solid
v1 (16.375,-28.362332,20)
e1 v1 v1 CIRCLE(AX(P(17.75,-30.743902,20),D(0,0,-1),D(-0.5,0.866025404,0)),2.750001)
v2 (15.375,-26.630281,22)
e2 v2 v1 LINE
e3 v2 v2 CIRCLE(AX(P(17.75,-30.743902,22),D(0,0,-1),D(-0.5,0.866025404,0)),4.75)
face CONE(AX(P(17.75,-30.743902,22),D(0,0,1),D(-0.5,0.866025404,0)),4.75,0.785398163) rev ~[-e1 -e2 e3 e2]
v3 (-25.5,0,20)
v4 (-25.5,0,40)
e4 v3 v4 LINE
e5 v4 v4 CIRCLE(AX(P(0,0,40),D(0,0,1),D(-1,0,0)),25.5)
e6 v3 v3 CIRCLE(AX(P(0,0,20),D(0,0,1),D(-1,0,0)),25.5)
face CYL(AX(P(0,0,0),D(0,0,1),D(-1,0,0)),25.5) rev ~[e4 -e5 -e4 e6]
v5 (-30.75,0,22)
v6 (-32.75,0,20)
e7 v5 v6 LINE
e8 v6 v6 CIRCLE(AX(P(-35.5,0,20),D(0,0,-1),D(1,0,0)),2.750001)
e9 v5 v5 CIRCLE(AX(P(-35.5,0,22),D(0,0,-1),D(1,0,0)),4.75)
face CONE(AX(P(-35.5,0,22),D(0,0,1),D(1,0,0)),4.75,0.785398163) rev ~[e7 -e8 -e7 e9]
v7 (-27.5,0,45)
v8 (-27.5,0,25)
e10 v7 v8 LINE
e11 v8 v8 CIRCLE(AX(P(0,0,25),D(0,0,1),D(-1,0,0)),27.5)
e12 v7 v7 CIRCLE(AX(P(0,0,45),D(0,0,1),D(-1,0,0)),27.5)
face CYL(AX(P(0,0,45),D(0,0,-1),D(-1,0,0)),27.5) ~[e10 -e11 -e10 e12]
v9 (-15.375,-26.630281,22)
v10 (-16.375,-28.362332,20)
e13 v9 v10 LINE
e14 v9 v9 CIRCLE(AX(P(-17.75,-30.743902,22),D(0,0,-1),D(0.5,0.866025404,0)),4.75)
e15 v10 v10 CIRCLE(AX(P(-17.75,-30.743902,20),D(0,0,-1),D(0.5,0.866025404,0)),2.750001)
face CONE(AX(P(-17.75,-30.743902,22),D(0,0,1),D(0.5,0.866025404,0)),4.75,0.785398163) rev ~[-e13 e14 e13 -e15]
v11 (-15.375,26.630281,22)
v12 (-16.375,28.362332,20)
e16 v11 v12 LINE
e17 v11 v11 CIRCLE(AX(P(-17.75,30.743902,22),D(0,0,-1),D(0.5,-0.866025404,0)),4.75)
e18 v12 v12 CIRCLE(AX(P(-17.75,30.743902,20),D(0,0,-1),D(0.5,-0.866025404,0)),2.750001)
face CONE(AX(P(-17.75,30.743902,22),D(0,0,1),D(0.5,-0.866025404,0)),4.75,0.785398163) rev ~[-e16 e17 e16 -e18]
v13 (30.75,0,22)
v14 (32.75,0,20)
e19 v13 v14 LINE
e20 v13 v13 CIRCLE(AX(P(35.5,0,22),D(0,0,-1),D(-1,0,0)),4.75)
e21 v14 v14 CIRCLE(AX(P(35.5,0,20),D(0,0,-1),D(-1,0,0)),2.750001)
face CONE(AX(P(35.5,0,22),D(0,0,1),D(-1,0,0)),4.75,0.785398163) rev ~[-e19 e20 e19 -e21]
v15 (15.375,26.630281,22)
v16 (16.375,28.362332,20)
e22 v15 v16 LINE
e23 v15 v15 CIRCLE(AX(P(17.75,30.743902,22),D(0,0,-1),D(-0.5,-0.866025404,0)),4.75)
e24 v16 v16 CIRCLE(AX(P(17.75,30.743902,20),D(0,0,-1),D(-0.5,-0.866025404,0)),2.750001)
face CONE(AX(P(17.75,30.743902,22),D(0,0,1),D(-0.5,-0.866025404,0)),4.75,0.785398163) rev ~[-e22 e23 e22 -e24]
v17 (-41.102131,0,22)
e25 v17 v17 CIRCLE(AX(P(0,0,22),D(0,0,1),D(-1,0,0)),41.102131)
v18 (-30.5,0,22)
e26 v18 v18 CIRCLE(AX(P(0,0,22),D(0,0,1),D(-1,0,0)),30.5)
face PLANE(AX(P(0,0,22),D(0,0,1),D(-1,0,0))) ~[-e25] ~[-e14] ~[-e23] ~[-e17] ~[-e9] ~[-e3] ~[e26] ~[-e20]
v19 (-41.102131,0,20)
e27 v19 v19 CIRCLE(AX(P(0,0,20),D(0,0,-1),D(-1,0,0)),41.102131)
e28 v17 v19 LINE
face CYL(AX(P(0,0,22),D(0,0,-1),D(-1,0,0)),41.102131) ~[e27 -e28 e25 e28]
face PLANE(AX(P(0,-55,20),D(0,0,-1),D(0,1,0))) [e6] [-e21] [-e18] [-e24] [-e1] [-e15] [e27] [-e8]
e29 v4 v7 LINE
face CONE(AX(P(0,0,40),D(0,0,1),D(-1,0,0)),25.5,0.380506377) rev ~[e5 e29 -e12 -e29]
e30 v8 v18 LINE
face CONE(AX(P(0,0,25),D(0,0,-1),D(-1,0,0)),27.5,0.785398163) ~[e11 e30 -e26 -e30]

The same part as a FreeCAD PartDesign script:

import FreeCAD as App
import Part
import Sketcher

V = App.Vector
Q = App.Units.Quantity

doc = App.newDocument("Part")
body = doc.addObject("PartDesign::Body", "Body")

# Sketch on XZ plane
sketch1 = body.newObject("Sketcher::SketchObject", "Sketch")
sketch1.AttachmentSupport = (doc.getObject("XZ_Plane"), [""])
sketch1.MapMode = "FlatFace"
sketch1.addGeometry([
    Part.LineSegment(V(-27.5, 18, 0), V(-27.5, 0, 0)),  # 0
    Part.LineSegment(V(-27.5, 0, 0), V(-25.5, 0, 0)),  # 1
    Part.LineSegment(V(-25.5, 0, 0), V(-25.5, 40, 0)),  # 2
    Part.LineSegment(V(-25.5, 40, 0), V(-27.5, 45, 0)),  # 3
    Part.LineSegment(V(-27.5, 45, 0), V(-27.5, 25, 0)),  # 4
    Part.LineSegment(V(-27.5, 25, 0), V(-30.5, 22, 0)),  # 5
    Part.LineSegment(V(-30.5, 22, 0), V(-41.1, 22, 0)),  # 6
    Part.LineSegment(V(-41.1, 22, 0), V(-41.1, 18, 0)),  # 7
    Part.LineSegment(V(-41.1, 18, 0), V(-27.5, 18, 0)),  # 8
], False)
sketch1.addConstraint([
    Sketcher.Constraint("Coincident", 0, 2, 1, 1),
    Sketcher.Constraint("Coincident", 1, 2, 2, 1),
    Sketcher.Constraint("Coincident", 2, 2, 3, 1),
    Sketcher.Constraint("Coincident", 3, 2, 4, 1),
    Sketcher.Constraint("Coincident", 4, 2, 5, 1),
    Sketcher.Constraint("Coincident", 5, 2, 6, 1),
    Sketcher.Constraint("Coincident", 6, 2, 7, 1),
    Sketcher.Constraint("Coincident", 7, 2, 8, 1),
    Sketcher.Constraint("Coincident", 8, 2, 0, 1),
    Sketcher.Constraint("Vertical", 0),
    Sketcher.Constraint("Horizontal", 1),
    Sketcher.Constraint("Vertical", 2),
    Sketcher.Constraint("Vertical", 4),
    Sketcher.Constraint("Horizontal", 6),
    Sketcher.Constraint("Vertical", 7),
    Sketcher.Constraint("Horizontal", 8),
    Sketcher.Constraint("PointOnObject", 0, 2, -1),
    Sketcher.Constraint("Vertical", 0, 2, 3, 2),
    Sketcher.Constraint("DistanceX", 1, 1, 1, 2, Q("2 mm")),
    Sketcher.Constraint("DistanceY", 0, 2, 0, 1, Q("18 mm")),
    Sketcher.Constraint("DistanceY", 2, 1, 2, 2, Q("40 mm")),
    Sketcher.Constraint("DistanceY", 4, 2, 4, 1, Q("20 mm")),
    Sketcher.Constraint("DistanceY", 7, 2, 7, 1, Q("4 mm")),
    Sketcher.Constraint("Angle", 5, Q("-135 deg")),
    Sketcher.Constraint("DistanceY", -1, 1, 3, 2, Q("45 mm")),
    Sketcher.Constraint("DistanceX", 0, 2, -1, 1, Q("27.5 mm")),
    Sketcher.Constraint("DistanceX", 6, 2, 6, 1, Q("10.602131 mm")),
])
revolution = body.newObject("PartDesign::Revolution", "Revolution")
revolution.Profile = sketch1
revolution.ReferenceAxis = (sketch1, ["V_Axis"])
revolution.Angle = 360

# Sketch on XY plane
sketch2 = body.newObject("Sketcher::SketchObject", "Sketch001")
sketch2.AttachmentSupport = (doc.getObject("XY_Plane"), [""])
sketch2.MapMode = "FlatFace"
sketch2.AttachmentOffset = App.Placement(V(0, 0, 22), App.Rotation())
sketch2.addGeometry(Part.Circle(V(-35.5, 0, 0), V(0, 0, 1), 2.2), False)
sketch2.addConstraint([
    Sketcher.Constraint("PointOnObject", 0, 3, -1),
    Sketcher.Constraint("Diameter", 0, Q("4.5 mm")),
    Sketcher.Constraint("DistanceX", 0, 3, -1, 1, Q("35.5 mm")),
])
doc.recompute()
hole = body.newObject("PartDesign::Hole", "Hole")
hole.Profile = sketch2
hole.ThreadType = "None"
hole.Diameter = 4.5
hole.DepthType = "Dimension"
hole.Depth = 25
hole.DrillPoint = "Flat"
hole.HoleCutType = "Countersink"
hole.HoleCutDiameter = 9.5
hole.HoleCutCountersinkAngle = 90
doc.recompute()

polarpattern = body.newObject("PartDesign::PolarPattern", "PolarPattern")
polarpattern.Originals = [hole]
polarpattern.Axis = (doc.getObject("Z_Axis"), [""])
polarpattern.Angle = 360
polarpattern.Occurrences = 6
body.Tip = polarpattern

# Sketch on YZ plane
sketch3 = body.newObject("Sketcher::SketchObject", "Sketch002")
sketch3.AttachmentSupport = (doc.getObject("YZ_Plane"), [""])
sketch3.MapMode = "FlatFace"
sketch3.addGeometry([
    Part.LineSegment(V(-55, 20, 0), V(-55, -51, 0)),
    Part.LineSegment(V(-55, -51, 0), V(55, -51, 0)),
    Part.LineSegment(V(55, -51, 0), V(55, 20, 0)),
    Part.LineSegment(V(55, 20, 0), V(-55, 20, 0)),
], False)
sketch3.addConstraint([
    Sketcher.Constraint("Coincident", 0, 2, 1, 1),
    Sketcher.Constraint("Coincident", 1, 2, 2, 1),
    Sketcher.Constraint("Coincident", 2, 2, 3, 1),
    Sketcher.Constraint("Coincident", 3, 2, 0, 1),
    Sketcher.Constraint("Vertical", 0),
    Sketcher.Constraint("Horizontal", 1),
    Sketcher.Constraint("Vertical", 2),
    Sketcher.Constraint("Horizontal", 3),
    Sketcher.Constraint("DistanceX", 1, 1, 1, 2, Q("110 mm")),
    Sketcher.Constraint("DistanceX", 0, 2, -1, 1, Q("55 mm")),
    Sketcher.Constraint("DistanceY", -1, 1, 2, 2, Q("20 mm")),
    Sketcher.Constraint("DistanceY", 0, 2, 0, 1, Q("70.917771 mm")),
])
pocket1 = body.newObject("PartDesign::Pocket", "Pocket")
pocket1.Profile = sketch3
pocket1.Type = "ThroughAll"
pocket1.Midplane = True

doc.recompute()
